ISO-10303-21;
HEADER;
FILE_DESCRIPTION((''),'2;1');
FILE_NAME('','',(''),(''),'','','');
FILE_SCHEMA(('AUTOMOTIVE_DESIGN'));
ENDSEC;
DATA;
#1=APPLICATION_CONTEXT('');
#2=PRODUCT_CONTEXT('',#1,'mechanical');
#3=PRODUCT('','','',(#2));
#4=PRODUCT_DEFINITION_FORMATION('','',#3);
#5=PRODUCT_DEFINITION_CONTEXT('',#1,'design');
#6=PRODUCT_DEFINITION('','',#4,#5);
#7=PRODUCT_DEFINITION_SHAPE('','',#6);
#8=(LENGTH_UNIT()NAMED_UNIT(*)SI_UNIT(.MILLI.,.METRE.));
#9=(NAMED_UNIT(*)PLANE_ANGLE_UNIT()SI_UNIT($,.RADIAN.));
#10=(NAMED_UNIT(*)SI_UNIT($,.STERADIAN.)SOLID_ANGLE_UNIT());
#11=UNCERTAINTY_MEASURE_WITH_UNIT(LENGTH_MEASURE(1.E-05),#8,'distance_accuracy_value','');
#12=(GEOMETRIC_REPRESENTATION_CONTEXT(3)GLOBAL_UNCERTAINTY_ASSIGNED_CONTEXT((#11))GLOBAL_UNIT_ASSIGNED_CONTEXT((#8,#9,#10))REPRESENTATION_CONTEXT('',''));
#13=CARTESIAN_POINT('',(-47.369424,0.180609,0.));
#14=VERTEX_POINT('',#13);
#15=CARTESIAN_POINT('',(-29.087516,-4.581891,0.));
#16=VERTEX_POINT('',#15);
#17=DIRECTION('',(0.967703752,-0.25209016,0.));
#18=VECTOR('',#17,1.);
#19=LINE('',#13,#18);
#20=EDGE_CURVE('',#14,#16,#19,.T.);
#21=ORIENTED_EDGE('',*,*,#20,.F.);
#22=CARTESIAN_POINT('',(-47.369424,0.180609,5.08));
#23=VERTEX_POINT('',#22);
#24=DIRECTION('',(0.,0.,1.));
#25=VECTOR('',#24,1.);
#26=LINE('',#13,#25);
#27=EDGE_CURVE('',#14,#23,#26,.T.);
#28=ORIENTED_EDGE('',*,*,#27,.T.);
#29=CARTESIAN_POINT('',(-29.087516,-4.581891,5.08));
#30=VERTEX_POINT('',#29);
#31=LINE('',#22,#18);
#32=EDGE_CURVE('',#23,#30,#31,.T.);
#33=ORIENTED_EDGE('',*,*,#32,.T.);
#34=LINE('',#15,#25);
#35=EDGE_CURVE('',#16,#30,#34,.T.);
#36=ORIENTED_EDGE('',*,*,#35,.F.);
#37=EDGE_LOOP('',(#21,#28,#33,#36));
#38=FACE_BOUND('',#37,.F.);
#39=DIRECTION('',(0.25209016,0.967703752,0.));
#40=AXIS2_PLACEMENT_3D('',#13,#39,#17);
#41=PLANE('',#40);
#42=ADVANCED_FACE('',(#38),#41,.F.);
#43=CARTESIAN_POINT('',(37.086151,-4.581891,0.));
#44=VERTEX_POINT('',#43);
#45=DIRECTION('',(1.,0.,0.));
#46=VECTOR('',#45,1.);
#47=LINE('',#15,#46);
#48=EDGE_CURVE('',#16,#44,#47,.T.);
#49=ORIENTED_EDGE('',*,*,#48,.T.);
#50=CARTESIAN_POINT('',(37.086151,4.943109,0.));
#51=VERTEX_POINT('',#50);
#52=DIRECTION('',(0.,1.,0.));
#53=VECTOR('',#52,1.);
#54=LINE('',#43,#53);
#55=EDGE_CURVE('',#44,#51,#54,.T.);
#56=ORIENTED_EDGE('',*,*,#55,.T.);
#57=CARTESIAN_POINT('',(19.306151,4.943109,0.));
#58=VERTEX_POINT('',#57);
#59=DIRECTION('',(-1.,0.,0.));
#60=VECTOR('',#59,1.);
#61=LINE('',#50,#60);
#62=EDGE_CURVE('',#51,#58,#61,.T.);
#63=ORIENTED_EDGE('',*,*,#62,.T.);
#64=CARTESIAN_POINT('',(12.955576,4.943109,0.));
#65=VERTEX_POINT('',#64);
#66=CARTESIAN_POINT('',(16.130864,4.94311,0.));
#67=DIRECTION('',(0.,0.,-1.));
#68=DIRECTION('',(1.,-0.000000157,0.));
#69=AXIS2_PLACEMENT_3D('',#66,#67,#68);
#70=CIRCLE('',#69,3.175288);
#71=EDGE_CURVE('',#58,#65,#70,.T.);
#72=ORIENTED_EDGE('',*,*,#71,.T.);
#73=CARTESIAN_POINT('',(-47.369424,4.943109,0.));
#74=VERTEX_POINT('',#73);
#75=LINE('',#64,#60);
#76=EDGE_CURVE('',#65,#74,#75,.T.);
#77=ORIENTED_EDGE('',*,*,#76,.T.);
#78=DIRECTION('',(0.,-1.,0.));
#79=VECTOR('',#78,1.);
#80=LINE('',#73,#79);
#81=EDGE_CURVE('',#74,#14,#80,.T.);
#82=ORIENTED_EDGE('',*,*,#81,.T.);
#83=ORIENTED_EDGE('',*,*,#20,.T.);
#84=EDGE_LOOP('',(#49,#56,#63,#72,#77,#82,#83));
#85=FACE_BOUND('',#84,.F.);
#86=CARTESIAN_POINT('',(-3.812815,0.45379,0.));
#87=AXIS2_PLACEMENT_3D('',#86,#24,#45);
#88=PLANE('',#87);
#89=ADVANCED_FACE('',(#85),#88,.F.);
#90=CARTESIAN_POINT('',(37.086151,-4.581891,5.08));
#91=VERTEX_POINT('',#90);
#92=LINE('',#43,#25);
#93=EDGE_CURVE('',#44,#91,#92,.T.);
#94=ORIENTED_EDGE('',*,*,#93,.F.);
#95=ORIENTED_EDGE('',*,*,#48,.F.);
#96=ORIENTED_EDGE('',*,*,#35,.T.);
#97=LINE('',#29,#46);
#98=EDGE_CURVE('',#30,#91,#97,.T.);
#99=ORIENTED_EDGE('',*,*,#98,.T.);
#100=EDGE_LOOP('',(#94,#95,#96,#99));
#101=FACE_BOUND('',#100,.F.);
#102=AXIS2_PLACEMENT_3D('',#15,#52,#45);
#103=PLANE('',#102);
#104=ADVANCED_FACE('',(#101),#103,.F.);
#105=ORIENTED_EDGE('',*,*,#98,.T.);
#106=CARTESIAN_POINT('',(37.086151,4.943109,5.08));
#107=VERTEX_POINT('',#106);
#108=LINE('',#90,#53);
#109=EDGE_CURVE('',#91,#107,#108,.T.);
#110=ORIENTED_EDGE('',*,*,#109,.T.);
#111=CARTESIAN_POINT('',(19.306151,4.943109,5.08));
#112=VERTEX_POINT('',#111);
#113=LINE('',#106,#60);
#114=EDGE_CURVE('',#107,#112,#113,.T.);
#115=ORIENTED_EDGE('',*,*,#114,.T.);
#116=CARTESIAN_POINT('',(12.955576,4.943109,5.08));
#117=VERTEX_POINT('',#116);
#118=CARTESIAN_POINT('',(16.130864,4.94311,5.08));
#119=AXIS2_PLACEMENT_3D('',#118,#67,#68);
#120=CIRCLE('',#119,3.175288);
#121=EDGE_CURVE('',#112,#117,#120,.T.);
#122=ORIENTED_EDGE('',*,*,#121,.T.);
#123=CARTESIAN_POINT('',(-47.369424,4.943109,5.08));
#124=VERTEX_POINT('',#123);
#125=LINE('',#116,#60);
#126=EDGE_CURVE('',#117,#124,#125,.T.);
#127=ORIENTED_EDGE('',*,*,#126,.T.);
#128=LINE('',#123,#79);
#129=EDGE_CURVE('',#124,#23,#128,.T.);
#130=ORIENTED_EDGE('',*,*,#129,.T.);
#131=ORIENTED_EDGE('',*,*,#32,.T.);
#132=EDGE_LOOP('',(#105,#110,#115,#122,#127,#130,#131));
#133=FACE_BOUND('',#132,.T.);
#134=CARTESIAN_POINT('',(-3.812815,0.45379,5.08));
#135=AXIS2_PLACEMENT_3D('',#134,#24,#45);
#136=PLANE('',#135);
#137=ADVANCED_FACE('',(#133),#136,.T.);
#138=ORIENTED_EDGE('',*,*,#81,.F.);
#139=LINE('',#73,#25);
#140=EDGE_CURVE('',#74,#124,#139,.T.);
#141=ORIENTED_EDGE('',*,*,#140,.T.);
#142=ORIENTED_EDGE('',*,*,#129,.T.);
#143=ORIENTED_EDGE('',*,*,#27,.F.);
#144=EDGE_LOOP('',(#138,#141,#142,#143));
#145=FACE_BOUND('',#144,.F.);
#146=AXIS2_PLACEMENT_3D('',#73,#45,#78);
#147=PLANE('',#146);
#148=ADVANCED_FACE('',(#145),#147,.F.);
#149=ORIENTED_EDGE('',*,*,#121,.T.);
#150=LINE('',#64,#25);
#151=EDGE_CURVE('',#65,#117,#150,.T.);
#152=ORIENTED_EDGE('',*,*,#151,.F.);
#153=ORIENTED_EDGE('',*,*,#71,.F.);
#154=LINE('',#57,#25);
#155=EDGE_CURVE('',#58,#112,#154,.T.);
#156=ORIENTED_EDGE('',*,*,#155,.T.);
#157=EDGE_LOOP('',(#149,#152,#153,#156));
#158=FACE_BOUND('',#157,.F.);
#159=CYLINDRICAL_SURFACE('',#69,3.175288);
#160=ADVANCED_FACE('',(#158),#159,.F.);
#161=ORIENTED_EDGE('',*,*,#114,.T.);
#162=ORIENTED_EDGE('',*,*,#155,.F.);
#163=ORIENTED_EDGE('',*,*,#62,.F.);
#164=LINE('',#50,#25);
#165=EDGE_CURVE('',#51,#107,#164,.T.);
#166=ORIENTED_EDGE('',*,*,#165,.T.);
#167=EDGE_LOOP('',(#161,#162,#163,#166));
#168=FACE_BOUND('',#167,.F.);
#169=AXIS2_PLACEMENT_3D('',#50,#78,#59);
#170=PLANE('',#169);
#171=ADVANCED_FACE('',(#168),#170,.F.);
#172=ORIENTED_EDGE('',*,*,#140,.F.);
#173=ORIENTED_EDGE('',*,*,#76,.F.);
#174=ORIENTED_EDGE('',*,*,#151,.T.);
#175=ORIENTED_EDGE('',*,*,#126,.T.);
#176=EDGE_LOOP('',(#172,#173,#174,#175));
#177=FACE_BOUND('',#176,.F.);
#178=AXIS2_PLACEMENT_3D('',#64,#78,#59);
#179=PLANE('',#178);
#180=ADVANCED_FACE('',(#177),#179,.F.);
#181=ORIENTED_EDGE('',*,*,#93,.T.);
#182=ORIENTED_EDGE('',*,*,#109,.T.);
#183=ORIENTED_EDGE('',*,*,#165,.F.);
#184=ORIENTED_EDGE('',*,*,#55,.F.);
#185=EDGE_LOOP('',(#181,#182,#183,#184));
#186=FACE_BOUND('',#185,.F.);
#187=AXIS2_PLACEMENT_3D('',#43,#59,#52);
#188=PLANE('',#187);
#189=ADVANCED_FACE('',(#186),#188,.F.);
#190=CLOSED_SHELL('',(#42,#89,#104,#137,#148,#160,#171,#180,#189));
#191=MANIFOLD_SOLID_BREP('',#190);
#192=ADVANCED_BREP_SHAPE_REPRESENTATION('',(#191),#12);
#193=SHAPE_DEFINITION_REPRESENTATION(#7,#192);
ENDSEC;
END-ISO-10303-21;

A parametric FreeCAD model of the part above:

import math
import FreeCAD as App
import Part
import Sketcher
Q = App.Units.Quantity

doc = App.newDocument("Part")
params = doc.addObject("Spreadsheet::Sheet", "Params")
for row, (alias, value) in enumerate([
    ("sketch1_width", "0.7 in"),
    ("sketch1_width2", "2.375 in"),
    ("sketch1_height", "0.1875 in"),
    ("sketch1_height2", "0.375 in"),
    ("pad1_length", "0.2 in"),
], start=1):
    params.set(f"A{row}", alias)
    params.set(f"B{row}", "=" + value)
    params.setAlias(f"B{row}", alias)

body = doc.addObject("PartDesign::Body", "Body")

# Sketch on XY plane
sketch1 = body.newObject("Sketcher::SketchObject", "Sketch")
sketch1.AttachmentSupport = (doc.getObject("XY_Plane"), [""])
sketch1.MapMode = "FlatFace"
sketch1.addGeometry(Part.LineSegment(App.Vector(-47.4, 4.9, 0), App.Vector(-47.4, 0.2, 0)), False)
sketch1.addGeometry(Part.LineSegment(App.Vector(-47.4, 0.2, 0), App.Vector(-29.1, -4.6, 0)), False)
sketch1.addGeometry(Part.LineSegment(App.Vector(-29.1, -4.6, 0), App.Vector(37.1, -4.6, 0)), False)
sketch1.addGeometry(Part.LineSegment(App.Vector(37.1, -4.6, 0), App.Vector(37.1, 4.9, 0)), False)
sketch1.addGeometry(Part.LineSegment(App.Vector(37.1, 4.9, 0), App.Vector(19.3, 4.9, 0)), False)
sketch1.addGeometry(Part.ArcOfCircle(Part.Circle(App.Vector(16.1, 4.9, 0), App.Vector(0, 0, 1), 3.2), math.radians(-180), math.radians(0)), False)
sketch1.addGeometry(Part.LineSegment(App.Vector(13, 4.9, 0), App.Vector(-47.4, 4.9, 0)), False)
sketch1.addConstraint(Sketcher.Constraint("Coincident", 0, 2, 1, 1))
sketch1.addConstraint(Sketcher.Constraint("Coincident", 1, 2, 2, 1))
sketch1.addConstraint(Sketcher.Constraint("Coincident", 2, 2, 3, 1))
sketch1.addConstraint(Sketcher.Constraint("Coincident", 3, 2, 4, 1))
sketch1.addConstraint(Sketcher.Constraint("Coincident", 4, 2, 5, 2))
sketch1.addConstraint(Sketcher.Constraint("Coincident", 5, 1, 6, 1))
sketch1.addConstraint(Sketcher.Constraint("Coincident", 6, 2, 0, 1))
sketch1.addConstraint(Sketcher.Constraint("Vertical", 0))
sketch1.addConstraint(Sketcher.Constraint("Horizontal", 2))
sketch1.addConstraint(Sketcher.Constraint("Vertical", 3))
sketch1.addConstraint(Sketcher.Constraint("Horizontal", 4))
sketch1.addConstraint(Sketcher.Constraint("Horizontal", 6))
sketch1.addConstraint(Sketcher.Constraint("Horizontal", 5, 3, 3, 2))
sketch1.addConstraint(Sketcher.Constraint("Horizontal", 4, 2, 5, 1))
sketch1.addConstraint(Sketcher.Constraint("DistanceX", 4, 2, 4, 1, Q("0.7 in")))
sketch1.addConstraint(Sketcher.Constraint("DistanceX", 6, 2, 6, 1, Q("2.375 in")))
sketch1.addConstraint(Sketcher.Constraint("DistanceY", 0, 2, 0, 1, Q("0.1875 in")))
sketch1.addConstraint(Sketcher.Constraint("DistanceY", 3, 1, 3, 2, Q("0.375 in")))
sketch1.addConstraint(Sketcher.Constraint("Radius", 5, 3.175288))
sketch1.addConstraint(Sketcher.Constraint("Distance", 1, 18.89205))
sketch1.addConstraint(Sketcher.Constraint("DistanceY", -1, 1, 5, 3, 4.94311))
sketch1.addConstraint(Sketcher.Constraint("DistanceX", -1, 1, 2, 2, 37.086151))
sketch1.setExpression("Constraints[14]", "Params.sketch1_width")
sketch1.setExpression("Constraints[15]", "Params.sketch1_width2")
sketch1.setExpression("Constraints[16]", "Params.sketch1_height")
sketch1.setExpression("Constraints[17]", "Params.sketch1_height2")
pad1 = body.newObject("PartDesign::Pad", "Pad")
pad1.Profile = sketch1
pad1.setExpression("Length", "Params.pad1_length")

doc.recompute()
